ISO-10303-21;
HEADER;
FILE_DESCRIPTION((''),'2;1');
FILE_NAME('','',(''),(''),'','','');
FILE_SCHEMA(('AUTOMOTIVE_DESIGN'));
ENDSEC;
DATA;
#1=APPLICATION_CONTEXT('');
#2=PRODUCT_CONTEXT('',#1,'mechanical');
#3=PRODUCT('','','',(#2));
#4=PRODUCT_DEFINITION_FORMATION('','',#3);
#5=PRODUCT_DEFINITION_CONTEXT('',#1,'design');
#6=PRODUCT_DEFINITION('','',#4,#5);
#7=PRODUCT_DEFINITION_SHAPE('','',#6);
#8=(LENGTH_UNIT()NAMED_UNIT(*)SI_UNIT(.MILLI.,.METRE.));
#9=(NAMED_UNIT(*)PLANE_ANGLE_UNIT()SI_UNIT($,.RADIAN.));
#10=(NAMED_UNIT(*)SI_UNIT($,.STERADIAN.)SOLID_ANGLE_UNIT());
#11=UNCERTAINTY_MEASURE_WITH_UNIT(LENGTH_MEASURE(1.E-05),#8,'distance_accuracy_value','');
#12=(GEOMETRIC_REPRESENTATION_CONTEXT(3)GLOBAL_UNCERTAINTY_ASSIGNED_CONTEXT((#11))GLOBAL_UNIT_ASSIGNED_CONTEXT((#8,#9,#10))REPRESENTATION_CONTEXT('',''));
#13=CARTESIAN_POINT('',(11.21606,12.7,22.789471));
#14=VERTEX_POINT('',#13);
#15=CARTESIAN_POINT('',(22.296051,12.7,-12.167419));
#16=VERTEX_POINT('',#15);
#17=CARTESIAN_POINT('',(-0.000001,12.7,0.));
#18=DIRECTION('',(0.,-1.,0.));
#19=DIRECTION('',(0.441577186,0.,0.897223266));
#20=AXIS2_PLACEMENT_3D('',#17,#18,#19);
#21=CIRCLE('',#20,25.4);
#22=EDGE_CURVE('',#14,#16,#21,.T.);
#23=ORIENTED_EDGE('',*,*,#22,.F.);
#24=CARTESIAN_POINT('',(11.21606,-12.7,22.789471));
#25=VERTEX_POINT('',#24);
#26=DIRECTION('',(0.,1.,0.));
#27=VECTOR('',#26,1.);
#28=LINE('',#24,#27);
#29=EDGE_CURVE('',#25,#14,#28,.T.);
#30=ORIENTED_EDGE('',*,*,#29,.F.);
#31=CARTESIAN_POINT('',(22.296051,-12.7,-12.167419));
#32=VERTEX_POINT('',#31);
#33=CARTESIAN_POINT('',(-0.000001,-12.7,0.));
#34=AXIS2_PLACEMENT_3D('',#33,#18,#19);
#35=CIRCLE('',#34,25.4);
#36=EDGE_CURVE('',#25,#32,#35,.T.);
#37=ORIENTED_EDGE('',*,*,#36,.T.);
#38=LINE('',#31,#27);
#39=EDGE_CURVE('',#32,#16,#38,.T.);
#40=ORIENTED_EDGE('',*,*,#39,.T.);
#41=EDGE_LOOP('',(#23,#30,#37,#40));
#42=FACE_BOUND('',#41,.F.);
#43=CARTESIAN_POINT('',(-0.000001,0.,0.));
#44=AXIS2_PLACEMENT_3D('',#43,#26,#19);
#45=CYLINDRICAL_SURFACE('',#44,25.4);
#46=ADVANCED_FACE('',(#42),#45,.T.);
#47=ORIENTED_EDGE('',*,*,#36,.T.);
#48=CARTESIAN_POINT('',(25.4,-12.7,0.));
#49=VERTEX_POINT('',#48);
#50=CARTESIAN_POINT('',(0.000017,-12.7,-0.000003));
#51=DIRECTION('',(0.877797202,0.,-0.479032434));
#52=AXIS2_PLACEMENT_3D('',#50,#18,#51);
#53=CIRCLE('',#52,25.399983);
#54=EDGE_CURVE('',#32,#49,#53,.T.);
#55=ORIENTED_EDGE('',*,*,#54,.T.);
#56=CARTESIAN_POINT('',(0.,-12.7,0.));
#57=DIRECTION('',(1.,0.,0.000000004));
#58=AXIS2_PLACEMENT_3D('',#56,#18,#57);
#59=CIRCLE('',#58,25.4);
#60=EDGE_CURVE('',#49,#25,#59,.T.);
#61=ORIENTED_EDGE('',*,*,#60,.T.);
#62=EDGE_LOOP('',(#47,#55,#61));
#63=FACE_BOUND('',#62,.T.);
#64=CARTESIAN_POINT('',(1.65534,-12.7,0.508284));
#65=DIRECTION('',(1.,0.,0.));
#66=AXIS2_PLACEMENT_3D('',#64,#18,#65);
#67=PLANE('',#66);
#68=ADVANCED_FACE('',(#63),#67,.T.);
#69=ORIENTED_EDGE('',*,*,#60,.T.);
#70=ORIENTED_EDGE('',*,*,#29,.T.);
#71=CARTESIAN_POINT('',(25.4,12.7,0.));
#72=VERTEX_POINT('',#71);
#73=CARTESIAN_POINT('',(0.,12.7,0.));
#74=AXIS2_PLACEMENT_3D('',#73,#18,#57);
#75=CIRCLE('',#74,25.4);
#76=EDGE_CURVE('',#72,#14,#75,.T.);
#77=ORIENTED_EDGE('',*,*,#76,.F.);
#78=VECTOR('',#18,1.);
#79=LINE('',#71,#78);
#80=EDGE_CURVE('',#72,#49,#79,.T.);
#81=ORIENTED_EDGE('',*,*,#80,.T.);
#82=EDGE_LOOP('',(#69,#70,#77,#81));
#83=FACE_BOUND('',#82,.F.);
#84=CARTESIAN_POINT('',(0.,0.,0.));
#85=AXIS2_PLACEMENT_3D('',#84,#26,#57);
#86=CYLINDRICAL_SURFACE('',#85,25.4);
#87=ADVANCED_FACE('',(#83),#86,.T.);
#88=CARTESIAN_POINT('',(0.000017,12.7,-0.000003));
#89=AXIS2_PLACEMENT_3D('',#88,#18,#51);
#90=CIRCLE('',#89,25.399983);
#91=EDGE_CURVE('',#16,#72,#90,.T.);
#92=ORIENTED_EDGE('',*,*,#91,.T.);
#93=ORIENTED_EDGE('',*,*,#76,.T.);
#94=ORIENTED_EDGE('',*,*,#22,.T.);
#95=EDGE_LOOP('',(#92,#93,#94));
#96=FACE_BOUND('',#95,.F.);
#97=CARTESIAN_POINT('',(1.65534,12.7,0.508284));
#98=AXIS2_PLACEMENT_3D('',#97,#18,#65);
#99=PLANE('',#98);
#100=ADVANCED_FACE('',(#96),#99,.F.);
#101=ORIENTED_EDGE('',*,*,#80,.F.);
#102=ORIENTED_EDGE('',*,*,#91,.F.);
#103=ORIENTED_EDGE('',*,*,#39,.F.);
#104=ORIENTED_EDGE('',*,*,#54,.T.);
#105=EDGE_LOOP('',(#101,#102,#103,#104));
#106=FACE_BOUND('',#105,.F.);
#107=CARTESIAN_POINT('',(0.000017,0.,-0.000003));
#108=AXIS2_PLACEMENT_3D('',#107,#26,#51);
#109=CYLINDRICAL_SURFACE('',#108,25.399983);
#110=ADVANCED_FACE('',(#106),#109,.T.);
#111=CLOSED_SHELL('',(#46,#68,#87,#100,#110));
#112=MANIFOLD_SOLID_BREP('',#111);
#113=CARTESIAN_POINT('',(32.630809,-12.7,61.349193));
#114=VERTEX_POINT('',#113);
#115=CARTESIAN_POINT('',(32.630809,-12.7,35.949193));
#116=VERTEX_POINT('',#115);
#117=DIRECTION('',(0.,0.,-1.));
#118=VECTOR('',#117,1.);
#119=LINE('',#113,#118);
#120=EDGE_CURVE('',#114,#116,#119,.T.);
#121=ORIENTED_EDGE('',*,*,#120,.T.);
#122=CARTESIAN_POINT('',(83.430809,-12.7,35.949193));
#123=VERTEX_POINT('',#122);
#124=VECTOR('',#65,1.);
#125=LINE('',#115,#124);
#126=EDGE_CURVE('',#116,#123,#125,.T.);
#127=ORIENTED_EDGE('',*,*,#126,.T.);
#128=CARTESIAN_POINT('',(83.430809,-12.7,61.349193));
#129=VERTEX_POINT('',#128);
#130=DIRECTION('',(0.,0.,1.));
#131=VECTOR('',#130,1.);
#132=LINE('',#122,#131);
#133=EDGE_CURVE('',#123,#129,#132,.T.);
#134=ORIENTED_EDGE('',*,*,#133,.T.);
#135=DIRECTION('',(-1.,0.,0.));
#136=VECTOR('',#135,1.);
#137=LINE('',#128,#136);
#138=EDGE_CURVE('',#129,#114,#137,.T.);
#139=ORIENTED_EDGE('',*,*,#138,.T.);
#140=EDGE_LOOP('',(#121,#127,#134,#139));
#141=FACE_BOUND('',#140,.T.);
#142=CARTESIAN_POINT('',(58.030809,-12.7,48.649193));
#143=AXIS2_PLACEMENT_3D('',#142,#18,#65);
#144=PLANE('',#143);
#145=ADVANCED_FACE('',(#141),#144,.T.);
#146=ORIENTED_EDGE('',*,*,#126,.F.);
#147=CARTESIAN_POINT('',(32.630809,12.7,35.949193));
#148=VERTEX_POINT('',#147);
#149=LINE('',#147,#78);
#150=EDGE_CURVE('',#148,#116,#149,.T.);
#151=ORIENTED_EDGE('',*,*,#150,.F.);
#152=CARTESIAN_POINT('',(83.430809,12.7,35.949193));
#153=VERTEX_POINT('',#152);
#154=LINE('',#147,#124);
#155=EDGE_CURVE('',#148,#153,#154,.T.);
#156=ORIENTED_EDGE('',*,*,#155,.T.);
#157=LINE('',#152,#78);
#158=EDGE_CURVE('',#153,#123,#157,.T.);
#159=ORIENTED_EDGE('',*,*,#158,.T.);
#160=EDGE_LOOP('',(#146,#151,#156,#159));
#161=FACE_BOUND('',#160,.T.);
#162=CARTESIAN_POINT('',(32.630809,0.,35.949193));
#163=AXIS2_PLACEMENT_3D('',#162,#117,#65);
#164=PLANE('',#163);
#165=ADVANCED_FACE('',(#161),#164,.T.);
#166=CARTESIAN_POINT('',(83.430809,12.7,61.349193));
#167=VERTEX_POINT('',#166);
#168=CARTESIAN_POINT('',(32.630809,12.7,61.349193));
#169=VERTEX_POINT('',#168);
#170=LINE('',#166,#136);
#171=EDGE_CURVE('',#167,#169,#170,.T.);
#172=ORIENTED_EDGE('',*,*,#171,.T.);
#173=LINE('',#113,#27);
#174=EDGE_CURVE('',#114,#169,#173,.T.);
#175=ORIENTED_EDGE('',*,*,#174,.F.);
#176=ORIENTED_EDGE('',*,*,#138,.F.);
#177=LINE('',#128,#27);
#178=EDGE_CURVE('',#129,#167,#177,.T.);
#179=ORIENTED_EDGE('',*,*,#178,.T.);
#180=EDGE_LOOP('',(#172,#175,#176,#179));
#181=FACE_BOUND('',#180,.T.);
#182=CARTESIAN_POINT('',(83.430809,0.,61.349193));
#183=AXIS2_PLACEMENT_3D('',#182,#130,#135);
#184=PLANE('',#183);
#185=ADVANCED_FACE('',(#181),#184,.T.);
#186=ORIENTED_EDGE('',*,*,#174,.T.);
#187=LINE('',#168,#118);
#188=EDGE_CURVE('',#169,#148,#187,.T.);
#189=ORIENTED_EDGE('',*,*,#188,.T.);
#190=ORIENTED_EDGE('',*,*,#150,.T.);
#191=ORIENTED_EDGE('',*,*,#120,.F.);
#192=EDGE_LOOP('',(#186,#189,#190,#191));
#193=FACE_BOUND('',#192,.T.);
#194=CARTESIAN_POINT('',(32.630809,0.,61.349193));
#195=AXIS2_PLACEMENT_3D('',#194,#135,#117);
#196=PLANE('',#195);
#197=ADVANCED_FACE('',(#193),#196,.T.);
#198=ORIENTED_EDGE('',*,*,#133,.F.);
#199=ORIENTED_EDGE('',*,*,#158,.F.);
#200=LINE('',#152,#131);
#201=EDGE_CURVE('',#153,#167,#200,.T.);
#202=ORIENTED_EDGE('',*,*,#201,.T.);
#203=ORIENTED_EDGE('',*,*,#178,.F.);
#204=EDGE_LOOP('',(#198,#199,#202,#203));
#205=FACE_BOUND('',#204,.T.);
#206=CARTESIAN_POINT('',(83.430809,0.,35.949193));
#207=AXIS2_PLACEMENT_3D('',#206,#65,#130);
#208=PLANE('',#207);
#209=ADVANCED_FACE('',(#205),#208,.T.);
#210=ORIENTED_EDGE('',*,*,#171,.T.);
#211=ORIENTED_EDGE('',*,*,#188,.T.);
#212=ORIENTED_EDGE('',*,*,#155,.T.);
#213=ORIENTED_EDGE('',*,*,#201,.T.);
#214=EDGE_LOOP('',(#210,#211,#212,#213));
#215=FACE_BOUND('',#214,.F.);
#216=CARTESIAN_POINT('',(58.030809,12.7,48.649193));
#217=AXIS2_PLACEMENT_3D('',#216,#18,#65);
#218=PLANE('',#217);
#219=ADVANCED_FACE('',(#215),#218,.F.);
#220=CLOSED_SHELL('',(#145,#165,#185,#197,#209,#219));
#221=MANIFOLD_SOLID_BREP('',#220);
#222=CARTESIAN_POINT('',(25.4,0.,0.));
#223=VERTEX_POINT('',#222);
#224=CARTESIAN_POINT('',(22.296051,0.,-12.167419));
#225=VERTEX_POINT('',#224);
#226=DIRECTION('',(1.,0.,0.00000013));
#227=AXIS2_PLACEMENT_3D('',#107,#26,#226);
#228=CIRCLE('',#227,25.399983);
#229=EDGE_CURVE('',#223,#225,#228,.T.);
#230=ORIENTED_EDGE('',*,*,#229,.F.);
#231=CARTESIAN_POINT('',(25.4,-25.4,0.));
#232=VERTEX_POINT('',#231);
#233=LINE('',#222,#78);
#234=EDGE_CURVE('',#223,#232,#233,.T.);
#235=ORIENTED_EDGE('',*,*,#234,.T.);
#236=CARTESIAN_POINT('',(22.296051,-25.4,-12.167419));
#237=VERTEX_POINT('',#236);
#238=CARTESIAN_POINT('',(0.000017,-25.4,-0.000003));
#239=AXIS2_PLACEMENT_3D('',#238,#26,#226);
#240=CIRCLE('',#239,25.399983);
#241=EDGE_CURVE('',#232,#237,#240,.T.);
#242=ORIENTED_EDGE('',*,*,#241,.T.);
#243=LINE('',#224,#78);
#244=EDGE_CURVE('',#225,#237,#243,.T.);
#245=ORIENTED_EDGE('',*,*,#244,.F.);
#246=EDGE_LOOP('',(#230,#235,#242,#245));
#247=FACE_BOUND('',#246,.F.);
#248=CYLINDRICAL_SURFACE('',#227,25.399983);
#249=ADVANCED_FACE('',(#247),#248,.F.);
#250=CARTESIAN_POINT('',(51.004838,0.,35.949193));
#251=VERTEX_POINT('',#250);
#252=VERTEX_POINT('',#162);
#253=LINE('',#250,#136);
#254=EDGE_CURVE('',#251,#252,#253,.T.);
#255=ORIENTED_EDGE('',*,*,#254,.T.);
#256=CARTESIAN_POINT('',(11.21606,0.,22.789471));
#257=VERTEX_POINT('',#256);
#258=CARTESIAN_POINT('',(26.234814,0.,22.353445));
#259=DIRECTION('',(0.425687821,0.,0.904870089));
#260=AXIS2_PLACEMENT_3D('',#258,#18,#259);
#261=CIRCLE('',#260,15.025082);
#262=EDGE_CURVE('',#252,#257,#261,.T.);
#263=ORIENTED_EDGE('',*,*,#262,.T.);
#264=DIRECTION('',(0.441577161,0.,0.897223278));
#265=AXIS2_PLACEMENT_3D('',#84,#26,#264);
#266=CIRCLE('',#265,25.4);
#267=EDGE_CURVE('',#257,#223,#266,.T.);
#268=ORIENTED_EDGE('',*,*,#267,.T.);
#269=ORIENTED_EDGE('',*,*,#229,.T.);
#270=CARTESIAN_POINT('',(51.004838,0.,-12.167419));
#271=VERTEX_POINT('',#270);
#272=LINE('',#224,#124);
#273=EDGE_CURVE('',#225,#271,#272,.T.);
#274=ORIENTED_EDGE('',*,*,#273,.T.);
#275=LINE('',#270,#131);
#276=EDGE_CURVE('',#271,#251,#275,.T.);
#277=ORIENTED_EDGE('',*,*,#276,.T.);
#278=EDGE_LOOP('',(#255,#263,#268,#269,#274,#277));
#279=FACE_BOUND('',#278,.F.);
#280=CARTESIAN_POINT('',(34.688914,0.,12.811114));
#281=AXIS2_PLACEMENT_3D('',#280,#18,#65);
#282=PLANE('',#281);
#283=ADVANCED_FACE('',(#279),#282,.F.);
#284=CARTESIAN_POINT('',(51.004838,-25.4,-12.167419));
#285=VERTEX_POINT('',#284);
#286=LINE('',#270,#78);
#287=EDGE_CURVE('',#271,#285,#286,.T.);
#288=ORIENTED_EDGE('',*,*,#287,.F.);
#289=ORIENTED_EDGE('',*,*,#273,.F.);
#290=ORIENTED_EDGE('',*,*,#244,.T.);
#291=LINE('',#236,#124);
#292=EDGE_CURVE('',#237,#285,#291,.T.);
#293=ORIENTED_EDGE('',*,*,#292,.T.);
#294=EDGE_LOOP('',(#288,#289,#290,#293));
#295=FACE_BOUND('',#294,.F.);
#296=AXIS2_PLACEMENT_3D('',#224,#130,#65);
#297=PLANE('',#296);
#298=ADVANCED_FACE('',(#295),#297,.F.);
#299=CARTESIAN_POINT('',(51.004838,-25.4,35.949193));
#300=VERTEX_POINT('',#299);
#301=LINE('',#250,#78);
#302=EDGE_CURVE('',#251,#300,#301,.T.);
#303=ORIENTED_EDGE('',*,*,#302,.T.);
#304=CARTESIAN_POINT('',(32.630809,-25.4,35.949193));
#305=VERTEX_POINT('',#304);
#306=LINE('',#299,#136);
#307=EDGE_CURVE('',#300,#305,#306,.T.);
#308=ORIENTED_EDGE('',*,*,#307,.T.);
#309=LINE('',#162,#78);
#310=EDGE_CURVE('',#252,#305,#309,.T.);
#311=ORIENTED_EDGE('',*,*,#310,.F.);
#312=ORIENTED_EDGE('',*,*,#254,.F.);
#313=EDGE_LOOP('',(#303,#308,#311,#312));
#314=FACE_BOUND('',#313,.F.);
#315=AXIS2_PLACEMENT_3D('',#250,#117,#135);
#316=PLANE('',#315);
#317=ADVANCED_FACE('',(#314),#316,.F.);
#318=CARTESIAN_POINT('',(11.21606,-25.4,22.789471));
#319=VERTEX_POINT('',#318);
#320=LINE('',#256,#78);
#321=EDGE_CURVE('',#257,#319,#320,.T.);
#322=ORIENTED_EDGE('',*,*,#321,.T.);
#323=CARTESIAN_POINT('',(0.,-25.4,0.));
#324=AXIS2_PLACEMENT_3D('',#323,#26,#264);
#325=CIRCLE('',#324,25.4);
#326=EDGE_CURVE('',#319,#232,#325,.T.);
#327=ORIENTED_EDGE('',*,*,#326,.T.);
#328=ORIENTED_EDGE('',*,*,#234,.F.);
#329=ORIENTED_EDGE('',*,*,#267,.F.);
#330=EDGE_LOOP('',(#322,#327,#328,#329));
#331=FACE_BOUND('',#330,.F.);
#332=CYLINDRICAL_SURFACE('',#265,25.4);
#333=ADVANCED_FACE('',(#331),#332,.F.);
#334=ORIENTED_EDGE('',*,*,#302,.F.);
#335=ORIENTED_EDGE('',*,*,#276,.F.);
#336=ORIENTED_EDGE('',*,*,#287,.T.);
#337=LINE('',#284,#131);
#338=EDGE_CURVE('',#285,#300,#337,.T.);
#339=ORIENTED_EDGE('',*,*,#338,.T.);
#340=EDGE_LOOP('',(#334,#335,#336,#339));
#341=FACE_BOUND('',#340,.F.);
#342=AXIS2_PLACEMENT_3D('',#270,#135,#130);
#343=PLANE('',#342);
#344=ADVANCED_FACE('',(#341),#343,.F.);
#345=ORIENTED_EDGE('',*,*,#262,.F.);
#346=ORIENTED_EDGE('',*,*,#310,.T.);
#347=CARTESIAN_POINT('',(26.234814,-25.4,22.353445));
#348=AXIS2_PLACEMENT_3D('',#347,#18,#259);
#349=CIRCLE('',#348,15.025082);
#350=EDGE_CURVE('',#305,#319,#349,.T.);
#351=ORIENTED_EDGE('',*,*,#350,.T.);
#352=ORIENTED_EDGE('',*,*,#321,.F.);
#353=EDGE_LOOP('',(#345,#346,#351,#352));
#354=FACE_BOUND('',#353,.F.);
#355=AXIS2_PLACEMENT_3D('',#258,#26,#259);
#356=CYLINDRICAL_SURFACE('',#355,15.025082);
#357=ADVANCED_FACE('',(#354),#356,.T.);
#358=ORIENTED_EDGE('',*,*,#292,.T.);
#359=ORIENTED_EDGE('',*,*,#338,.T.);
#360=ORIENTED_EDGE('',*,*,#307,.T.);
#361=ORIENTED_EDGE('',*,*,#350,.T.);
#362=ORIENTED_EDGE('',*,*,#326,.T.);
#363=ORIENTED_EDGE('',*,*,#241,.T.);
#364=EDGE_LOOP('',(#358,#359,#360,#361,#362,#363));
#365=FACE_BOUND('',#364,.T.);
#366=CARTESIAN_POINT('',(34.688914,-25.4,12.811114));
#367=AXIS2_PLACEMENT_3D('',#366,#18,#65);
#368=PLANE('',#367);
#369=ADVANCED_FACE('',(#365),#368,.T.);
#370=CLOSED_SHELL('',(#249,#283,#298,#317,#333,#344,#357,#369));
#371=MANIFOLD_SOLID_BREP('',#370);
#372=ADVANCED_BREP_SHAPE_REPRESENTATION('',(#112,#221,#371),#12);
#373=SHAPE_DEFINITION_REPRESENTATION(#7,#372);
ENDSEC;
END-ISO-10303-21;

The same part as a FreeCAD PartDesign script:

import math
import FreeCAD as App
import Part
import Sketcher
from FreeCAD import Vector
Q = App.Units.Quantity


def add_polygon(sketch, points):
    """Adds a closed chain of lines whose ends are joined by coincident constraints."""
    first, n = sketch.GeometryCount, len(points)
    for a, b in zip(points, points[1:] + points[:1]):
        sketch.addGeometry(Part.LineSegment(App.Vector(*a, 0), App.Vector(*b, 0)), False)
    for i in range(n):
        sketch.addConstraint(Sketcher.Constraint("Coincident", first + i, 2, first + (i + 1) % n, 1))

doc = App.newDocument("Part")
params = doc.addObject("Spreadsheet::Sheet", "Params")
for row, (alias, value) in enumerate([
    ("sketch1_radius", "1 in"),
    ("sketch1_width", "2 in"),
    ("sketch1_height", "1 in"),
    ("pad1_length", "1 in"),
    ("sketch2_radius", "1 in"),
    ("pad2_length", "1 in"),
], start=1):
    params.set(f"A{row}", alias)
    params.set(f"B{row}", "=" + value)
    params.setAlias(f"B{row}", alias)

body = doc.addObject("PartDesign::Body", "Body")
body.AllowCompound = True

# Sketch on XZ plane
sketch1 = body.newObject("Sketcher::SketchObject", "Sketch")
sketch1.AttachmentSupport = (doc.getObject("XZ_Plane"), [""])
sketch1.MapMode = "FlatFace"
sketch1.addGeometry(Part.ArcOfCircle(Part.Circle(Vector(0.000017, -0.000003, 0), Vector(0, 0, 1), 25.399983), math.radians(-28.622228), math.radians(0.000007)), False)  # 0
sketch1.addGeometry(Part.ArcOfCircle(Part.Circle(Vector(0, 0, 0), Vector(0, 0, 1), 25.4), math.radians(0), math.radians(63.795446)), False)  # 1
sketch1.addGeometry(Part.ArcOfCircle(Part.Circle(Vector(-0.000001, 0, 0), Vector(0, 0, 1), 25.4), math.radians(63.795445), math.radians(331.377784)), False)  # 2
add_polygon(sketch1, [(32.630809, 61.349193), (32.630809, 35.949193), (83.430809, 35.949193), (83.430809, 61.349193)])  # lines 3-6
sketch1.addConstraint(Sketcher.Constraint("Tangent", 0, 2, 1, 1))
sketch1.addConstraint(Sketcher.Constraint("Tangent", 1, 2, 2, 1))
sketch1.addConstraint(Sketcher.Constraint("Tangent", 2, 2, 0, 1))
sketch1.addConstraint(Sketcher.Constraint("Vertical", 3))
sketch1.addConstraint(Sketcher.Constraint("Horizontal", 4))
sketch1.addConstraint(Sketcher.Constraint("Vertical", 5))
sketch1.addConstraint(Sketcher.Constraint("Horizontal", 6))
sketch1.addConstraint(Sketcher.Constraint("Coincident", 1, 3, -1, 1))
sketch1.addConstraint(Sketcher.Constraint("PointOnObject", 0, 2, -1))
sketch1.addConstraint(Sketcher.Constraint("Radius", 1, Q("1 in")))
sketch1.addConstraint(Sketcher.Constraint("DistanceX", 4, 1, 4, 2, Q("2 in")))
sketch1.addConstraint(Sketcher.Constraint("DistanceY", 3, 2, 3, 1, Q("1 in")))
sketch1.addConstraint(Sketcher.Constraint("DistanceX", -1, 1, 1, 2, 11.21606))
sketch1.addConstraint(Sketcher.Constraint("DistanceX", -1, 1, 2, 2, 22.296051))
sketch1.addConstraint(Sketcher.Constraint("DistanceX", -1, 1, 3, 2, 32.630809))
sketch1.addConstraint(Sketcher.Constraint("DistanceY", 2, 2, 4, 2, 48.116612))
sketch1.setExpression("Constraints[13]", "Params.sketch1_radius")
sketch1.setExpression("Constraints[14]", "Params.sketch1_width")
sketch1.setExpression("Constraints[15]", "Params.sketch1_height")
pad1 = body.newObject("PartDesign::Pad", "Pad")
pad1.Profile = sketch1
pad1.setExpression("Length", "Params.pad1_length")
pad1.Midplane = True
body2 = doc.addObject("PartDesign::Body", "Body001")

# Sketch on XZ plane
sketch2 = body2.newObject("Sketcher::SketchObject", "Sketch001")
sketch2.AttachmentSupport = (doc.getObject("XZ_Plane001"), [""])
sketch2.MapMode = "FlatFace"
sketch2.addGeometry(Part.ArcOfCircle(Part.Circle(Vector(0, 0, 0), Vector(0, 0, 1), 25.4), math.radians(0), math.radians(63.795446)), False)
sketch2.addGeometry(Part.ArcOfCircle(Part.Circle(Vector(0.000017, -0.000003, 0), Vector(0, 0, 1), 25.399983), math.radians(-28.622228), math.radians(0.000007)), False)
sketch2.addGeometry(Part.LineSegment(Vector(22.296051, -12.167419, 0), Vector(51.004838, -12.167419, 0)), False)
sketch2.addGeometry(Part.LineSegment(Vector(51.004838, -12.167419, 0), Vector(51.004838, 35.949193, 0)), False)
sketch2.addGeometry(Part.LineSegment(Vector(51.004838, 35.949193, 0), Vector(32.630809, 35.949193, 0)), False)
sketch2.addGeometry(Part.ArcOfCircle(Part.Circle(Vector(26.234814, 22.353445, 0), Vector(0, 0, 1), 15.025082), math.radians(64.805792), math.radians(178.337051)), False)
sketch2.addConstraint(Sketcher.Constraint("Tangent", 0, 1, 1, 2))
sketch2.addConstraint(Sketcher.Constraint("Coincident", 1, 1, 2, 1))
sketch2.addConstraint(Sketcher.Constraint("Coincident", 2, 2, 3, 1))
sketch2.addConstraint(Sketcher.Constraint("Coincident", 3, 2, 4, 1))
sketch2.addConstraint(Sketcher.Constraint("Coincident", 4, 2, 5, 1))
sketch2.addConstraint(Sketcher.Constraint("Coincident", 5, 2, 0, 2))
sketch2.addConstraint(Sketcher.Constraint("Horizontal", 2))
sketch2.addConstraint(Sketcher.Constraint("Vertical", 3))
sketch2.addConstraint(Sketcher.Constraint("Horizontal", 4))
sketch2.addConstraint(Sketcher.Constraint("Coincident", 0, 3, -1, 1))
sketch2.addConstraint(Sketcher.Constraint("PointOnObject", 0, 1, -1))
sketch2.addConstraint(Sketcher.Constraint("Radius", 0, Q("1 in")))
sketch2.addConstraint(Sketcher.Constraint("Radius", 1, 25.399983))
sketch2.addConstraint(Sketcher.Constraint("Radius", 5, 15.025082))
sketch2.addConstraint(Sketcher.Constraint("DistanceX", 4, 2, 4, 1, 18.374029))
sketch2.addConstraint(Sketcher.Constraint("DistanceX", 2, 1, 2, 2, 28.708787))
sketch2.addConstraint(Sketcher.Constraint("DistanceY", 3, 1, 3, 2, 48.116612))
sketch2.addConstraint(Sketcher.Constraint("DistanceX", -1, 1, 1, 1, 22.296051))
sketch2.addConstraint(Sketcher.Constraint("DistanceX", -1, 1, 5, 2, 11.21606))
sketch2.setExpression("Constraints[11]", "Params.sketch2_radius")
pad2 = body2.newObject("PartDesign::Pad", "Pad001")
pad2.Profile = sketch2
pad2.setExpression("Length", "Params.pad2_length")

doc.recompute()
